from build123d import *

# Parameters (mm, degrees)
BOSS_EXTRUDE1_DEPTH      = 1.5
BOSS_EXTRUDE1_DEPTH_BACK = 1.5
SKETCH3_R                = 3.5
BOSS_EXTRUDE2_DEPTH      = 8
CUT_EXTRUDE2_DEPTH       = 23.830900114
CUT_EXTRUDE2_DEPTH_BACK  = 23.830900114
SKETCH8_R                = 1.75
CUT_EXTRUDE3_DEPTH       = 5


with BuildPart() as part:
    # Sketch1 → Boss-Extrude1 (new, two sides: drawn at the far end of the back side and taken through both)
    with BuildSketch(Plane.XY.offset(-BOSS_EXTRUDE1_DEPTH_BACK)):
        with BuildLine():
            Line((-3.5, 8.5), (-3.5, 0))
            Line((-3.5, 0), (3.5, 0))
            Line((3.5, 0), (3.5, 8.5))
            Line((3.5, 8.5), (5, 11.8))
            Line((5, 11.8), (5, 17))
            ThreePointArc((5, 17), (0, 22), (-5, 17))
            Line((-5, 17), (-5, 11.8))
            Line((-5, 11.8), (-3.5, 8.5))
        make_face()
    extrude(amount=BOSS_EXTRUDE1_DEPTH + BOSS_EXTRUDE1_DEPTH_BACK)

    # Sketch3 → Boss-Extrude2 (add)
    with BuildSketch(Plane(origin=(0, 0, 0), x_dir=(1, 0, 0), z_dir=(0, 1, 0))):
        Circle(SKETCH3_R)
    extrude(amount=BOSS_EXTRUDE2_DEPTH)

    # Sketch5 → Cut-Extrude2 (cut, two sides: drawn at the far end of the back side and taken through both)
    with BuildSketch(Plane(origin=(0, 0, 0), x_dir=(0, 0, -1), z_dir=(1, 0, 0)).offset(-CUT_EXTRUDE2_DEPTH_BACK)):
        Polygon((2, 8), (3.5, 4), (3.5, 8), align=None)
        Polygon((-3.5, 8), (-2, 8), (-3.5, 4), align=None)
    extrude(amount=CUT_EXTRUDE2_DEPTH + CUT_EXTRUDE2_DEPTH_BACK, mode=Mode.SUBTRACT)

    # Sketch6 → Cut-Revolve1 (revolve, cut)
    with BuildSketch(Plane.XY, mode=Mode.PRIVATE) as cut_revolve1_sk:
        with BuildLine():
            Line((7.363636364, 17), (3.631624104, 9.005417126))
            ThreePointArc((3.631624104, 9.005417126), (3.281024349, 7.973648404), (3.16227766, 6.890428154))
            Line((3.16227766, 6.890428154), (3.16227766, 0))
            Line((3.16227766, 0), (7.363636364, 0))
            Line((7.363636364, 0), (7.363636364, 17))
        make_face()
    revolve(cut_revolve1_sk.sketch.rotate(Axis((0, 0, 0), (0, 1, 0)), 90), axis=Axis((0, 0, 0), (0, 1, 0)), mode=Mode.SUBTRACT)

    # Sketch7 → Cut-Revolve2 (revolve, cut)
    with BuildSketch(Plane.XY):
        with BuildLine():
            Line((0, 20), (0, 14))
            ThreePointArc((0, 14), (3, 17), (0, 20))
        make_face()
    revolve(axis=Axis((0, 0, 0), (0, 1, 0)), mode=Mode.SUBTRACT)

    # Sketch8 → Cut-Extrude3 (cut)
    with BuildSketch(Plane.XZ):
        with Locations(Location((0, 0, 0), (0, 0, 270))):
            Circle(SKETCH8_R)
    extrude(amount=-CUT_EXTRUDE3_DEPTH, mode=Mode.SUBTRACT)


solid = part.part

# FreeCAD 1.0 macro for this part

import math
import FreeCAD as App
import Part
import Sketcher
from FreeCAD import Vector


def add_polygon(sketch, points):
    """Adds a closed chain of lines whose ends are joined by coincident constraints."""
    first, n = sketch.GeometryCount, len(points)
    for a, b in zip(points, points[1:] + points[:1]):
        sketch.addGeometry(Part.LineSegment(App.Vector(*a, 0), App.Vector(*b, 0)), False)
    for i in range(n):
        sketch.addConstraint(Sketcher.Constraint("Coincident", first + i, 2, first + (i + 1) % n, 1))

doc = App.newDocument("Part")
body = doc.addObject("PartDesign::Body", "Body")

# Sketch on XY plane
sketch1 = doc.addObject("Sketcher::SketchObject", "Sketch")
body.addObject(sketch1)
sketch1.AttachmentSupport = (doc.XY_Plane, [""])
sketch1.MapMode = "FlatFace"
sketch1.addGeometry(Part.LineSegment(Vector(-3.5, 8.5, 0), Vector(-3.5, 0, 0)), False)
sketch1.addGeometry(Part.LineSegment(Vector(-3.5, 0, 0), Vector(3.5, 0, 0)), False)
sketch1.addGeometry(Part.LineSegment(Vector(3.5, 0, 0), Vector(3.5, 8.5, 0)), False)
sketch1.addGeometry(Part.LineSegment(Vector(3.5, 8.5, 0), Vector(5, 11.8, 0)), False)
sketch1.addGeometry(Part.LineSegment(Vector(5, 11.8, 0), Vector(5, 17, 0)), False)
sketch1.addGeometry(Part.ArcOfCircle(Part.Circle(Vector(0, 17, 0), Vector(0, 0, 1), 5), math.radians(0), math.radians(180)), False)
sketch1.addGeometry(Part.LineSegment(Vector(-5, 17, 0), Vector(-5, 11.8, 0)), False)
sketch1.addGeometry(Part.LineSegment(Vector(-5, 11.8, 0), Vector(-3.5, 8.5, 0)), False)
sketch1.addConstraint(Sketcher.Constraint("Coincident", 0, 2, 1, 1))
sketch1.addConstraint(Sketcher.Constraint("Coincident", 1, 2, 2, 1))
sketch1.addConstraint(Sketcher.Constraint("Coincident", 2, 2, 3, 1))
sketch1.addConstraint(Sketcher.Constraint("Coincident", 3, 2, 4, 1))
sketch1.addConstraint(Sketcher.Constraint("Tangent", 4, 2, 5, 1))
sketch1.addConstraint(Sketcher.Constraint("Tangent", 5, 2, 6, 1))
sketch1.addConstraint(Sketcher.Constraint("Coincident", 6, 2, 7, 1))
sketch1.addConstraint(Sketcher.Constraint("Coincident", 7, 2, 0, 1))
sketch1.addConstraint(Sketcher.Constraint("Vertical", 0))
sketch1.addConstraint(Sketcher.Constraint("Horizontal", 1))
sketch1.addConstraint(Sketcher.Constraint("Vertical", 2))
sketch1.addConstraint(Sketcher.Constraint("Vertical", 4))
sketch1.addConstraint(Sketcher.Constraint("Vertical", 6))
sketch1.addConstraint(Sketcher.Constraint("Symmetric", 0, 2, 1, 2, -1, 1))
sketch1.addConstraint(Sketcher.Constraint("Symmetric", 3, 2, 6, 2, -2))
sketch1.addConstraint(Sketcher.Constraint("Horizontal", 2, 2, 7, 2))
sketch1.addConstraint(Sketcher.Constraint("Radius", 5, 5.0))
sketch1.addConstraint(Sketcher.Constraint("DistanceX", 1, 1, 1, 2, 7.0))
sketch1.addConstraint(Sketcher.Constraint("DistanceY", 0, 2, 0, 1, 8.5))
sketch1.addConstraint(Sketcher.Constraint("DistanceY", 4, 1, 4, 2, 5.2))
sketch1.addConstraint(Sketcher.Constraint("DistanceY", -1, 1, 5, 3, 17.0))
pad1 = doc.addObject("PartDesign::Pad", "Pad")
body.addObject(pad1)
pad1.Profile = sketch1
pad1.Type = "TwoLengths"
pad1.Length = 1.5
pad1.Length2 = 1.5

# Sketch on XZ plane
sketch2 = doc.addObject("Sketcher::SketchObject", "Sketch001")
body.addObject(sketch2)
sketch2.AttachmentSupport = (doc.XZ_Plane, [""])
sketch2.MapMode = "FlatFace"
sketch2.addGeometry(Part.Circle(Vector(0, 0, 0), Vector(0, 0, 1), 3.5), False)
sketch2.addConstraint(Sketcher.Constraint("Coincident", 0, 3, -1, 1))
sketch2.addConstraint(Sketcher.Constraint("Diameter", 0, 7.0))
pad2 = doc.addObject("PartDesign::Pad", "Pad001")
body.addObject(pad2)
pad2.Profile = sketch2
pad2.Length = 8
pad2.Reversed = True

# Sketch on YZ plane
sketch3 = doc.addObject("Sketcher::SketchObject", "Sketch002")
body.addObject(sketch3)
sketch3.AttachmentSupport = (doc.YZ_Plane, [""])
sketch3.MapMode = "FlatFace"
add_polygon(sketch3, [(8, -2), (4, -3.5), (8, -3.5)])  # lines 0-2
add_polygon(sketch3, [(8, 2), (8, 3.5), (4, 3.5)])  # lines 3-5
sketch3.addConstraint(Sketcher.Constraint("Horizontal", 1))
sketch3.addConstraint(Sketcher.Constraint("Vertical", 2))
sketch3.addConstraint(Sketcher.Constraint("Vertical", 3))
sketch3.addConstraint(Sketcher.Constraint("Horizontal", 4))
sketch3.addConstraint(Sketcher.Constraint("Symmetric", 1, 2, 3, 2, -1))
sketch3.addConstraint(Sketcher.Constraint("Vertical", 0, 2, 4, 2))
sketch3.addConstraint(Sketcher.Constraint("Equal", 2, 3))
sketch3.addConstraint(Sketcher.Constraint("DistanceX", 1, 1, 1, 2, 4.0))
sketch3.addConstraint(Sketcher.Constraint("DistanceY", 2, 1, 2, 2, 1.5))
sketch3.addConstraint(Sketcher.Constraint("DistanceX", -1, 1, 0, 2, 4.0))
sketch3.addConstraint(Sketcher.Constraint("DistanceY", 2, 2, -1, 1, 2.0))
pocket1 = doc.addObject("PartDesign::Pocket", "Pocket")
body.addObject(pocket1)
pocket1.Profile = sketch3
pocket1.Type = "ThroughAll"
pocket1.Midplane = True

# Sketch on XY plane
sketch4 = doc.addObject("Sketcher::SketchObject", "Sketch003")
body.addObject(sketch4)
sketch4.AttachmentSupport = (doc.XY_Plane, [""])
sketch4.MapMode = "FlatFace"
sketch4.addGeometry(Part.LineSegment(Vector(7.4, 17, 0), Vector(3.6, 9, 0)), False)
sketch4.addGeometry(Part.ArcOfCircle(Part.Circle(Vector(8.2, 6.9, 0), Vector(0, 0, 1), 5), math.radians(155), math.radians(180)), False)
sketch4.addGeometry(Part.LineSegment(Vector(3.2, 6.9, 0), Vector(3.2, 0, 0)), False)
sketch4.addGeometry(Part.LineSegment(Vector(3.2, 0, 0), Vector(7.4, 0, 0)), False)
sketch4.addGeometry(Part.LineSegment(Vector(7.4, 0, 0), Vector(7.4, 17, 0)), False)
sketch4.addConstraint(Sketcher.Constraint("Tangent", 0, 2, 1, 1))
sketch4.addConstraint(Sketcher.Constraint("Tangent", 1, 2, 2, 1))
sketch4.addConstraint(Sketcher.Constraint("Coincident", 2, 2, 3, 1))
sketch4.addConstraint(Sketcher.Constraint("Coincident", 3, 2, 4, 1))
sketch4.addConstraint(Sketcher.Constraint("Coincident", 4, 2, 0, 1))
sketch4.addConstraint(Sketcher.Constraint("Vertical", 2))
sketch4.addConstraint(Sketcher.Constraint("Horizontal", 3))
sketch4.addConstraint(Sketcher.Constraint("Vertical", 4))
sketch4.addConstraint(Sketcher.Constraint("PointOnObject", 2, 2, -1))
sketch4.addConstraint(Sketcher.Constraint("Radius", 1, 5.0))
sketch4.addConstraint(Sketcher.Constraint("DistanceY", 4, 1, 4, 2, 17.0))
sketch4.addConstraint(Sketcher.Constraint("DistanceX", 3, 1, 3, 2, 4.201359))
sketch4.addConstraint(Sketcher.Constraint("DistanceY", 2, 2, 2, 1, 6.890428))
sketch4.addConstraint(Sketcher.Constraint("DistanceX", -1, 1, 1, 3, 8.162278))
groove = doc.addObject("PartDesign::Groove", "Groove")
body.addObject(groove)
groove.Profile = sketch4
groove.ReferenceAxis = (sketch4, ["V_Axis"])
groove.Angle = 360

# Sketch on XY plane
sketch5 = doc.addObject("Sketcher::SketchObject", "Sketch004")
body.addObject(sketch5)
sketch5.AttachmentSupport = (doc.XY_Plane, [""])
sketch5.MapMode = "FlatFace"
sketch5.addGeometry(Part.LineSegment(Vector(0, 20, 0), Vector(0, 14, 0)), False)
sketch5.addGeometry(Part.ArcOfCircle(Part.Circle(Vector(0, 17, 0), Vector(0, 0, 1), 3), math.radians(-90), math.radians(90)), False)
sketch5.addConstraint(Sketcher.Constraint("Coincident", 0, 1, 1, 2))
sketch5.addConstraint(Sketcher.Constraint("Coincident", 1, 1, 0, 2))
sketch5.addConstraint(Sketcher.Constraint("Vertical", 0))
sketch5.addConstraint(Sketcher.Constraint("PointOnObject", 1, 3, -2))
sketch5.addConstraint(Sketcher.Constraint("PointOnObject", 0, 1, -2))
sketch5.addConstraint(Sketcher.Constraint("Radius", 1, 3.0))
sketch5.addConstraint(Sketcher.Constraint("DistanceY", -1, 1, 1, 3, 17.0))
groove2 = doc.addObject("PartDesign::Groove", "Groove001")
body.addObject(groove2)
groove2.Profile = sketch5
groove2.ReferenceAxis = (sketch5, ["V_Axis"])
groove2.Angle = 360

# Sketch on XZ plane
sketch6 = doc.addObject("Sketcher::SketchObject", "Sketch005")
body.addObject(sketch6)
sketch6.AttachmentSupport = (doc.XZ_Plane, [""])
sketch6.MapMode = "FlatFace"
sketch6.addGeometry(Part.Circle(Vector(0, 0, 0), Vector(0, 0, 1), 1.8), False)
sketch6.addConstraint(Sketcher.Constraint("Coincident", 0, 3, -1, 1))
sketch6.addConstraint(Sketcher.Constraint("Diameter", 0, 3.5))
pocket2 = doc.addObject("PartDesign::Pocket", "Pocket001")
body.addObject(pocket2)
pocket2.Profile = sketch6
pocket2.Length = 5

doc.recompute()
